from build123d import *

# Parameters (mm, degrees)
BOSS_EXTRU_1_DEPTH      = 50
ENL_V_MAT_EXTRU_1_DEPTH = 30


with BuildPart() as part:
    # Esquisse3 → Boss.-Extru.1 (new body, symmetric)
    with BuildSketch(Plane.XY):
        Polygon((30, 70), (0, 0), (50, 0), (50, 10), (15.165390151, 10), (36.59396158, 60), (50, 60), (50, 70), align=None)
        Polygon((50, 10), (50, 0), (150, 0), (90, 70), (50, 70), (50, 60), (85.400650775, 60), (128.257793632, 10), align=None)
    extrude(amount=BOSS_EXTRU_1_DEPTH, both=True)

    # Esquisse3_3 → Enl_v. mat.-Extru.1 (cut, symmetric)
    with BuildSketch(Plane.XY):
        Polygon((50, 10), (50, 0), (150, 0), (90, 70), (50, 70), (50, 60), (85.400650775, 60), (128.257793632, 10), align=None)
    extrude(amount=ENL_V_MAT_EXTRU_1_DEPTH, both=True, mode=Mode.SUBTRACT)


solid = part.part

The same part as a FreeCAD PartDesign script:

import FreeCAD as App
import Part
import Sketcher


def add_polygon(sketch, points):
    """Adds a closed chain of lines whose ends are joined by coincident constraints."""
    first, n = sketch.GeometryCount, len(points)
    for a, b in zip(points, points[1:] + points[:1]):
        sketch.addGeometry(Part.LineSegment(App.Vector(*a, 0), App.Vector(*b, 0)), False)
    for i in range(n):
        sketch.addConstraint(Sketcher.Constraint("Coincident", first + i, 2, first + (i + 1) % n, 1))

doc = App.newDocument("Part")
body = doc.addObject("PartDesign::Body", "Body")

sketch1 = doc.addObject("Sketcher::SketchObject", "Sketch")
body.addObject(sketch1)
sketch1.AttachmentSupport = (doc.XY_Plane, [""])
sketch1.MapMode = "FlatFace"
add_polygon(sketch1, [(30, 70), (0, 0), (150, 0), (90, 70)])
add_polygon(sketch1, [(15, 10), (37, 60), (85, 60), (128, 10)])
sketch1.addConstraint([
    Sketcher.Constraint("Horizontal", 1),
    Sketcher.Constraint("Horizontal", 3),
    Sketcher.Constraint("Horizontal", 5),
    Sketcher.Constraint("Horizontal", 7),
    Sketcher.Constraint("Coincident", 0, 2, -1, 1),
    Sketcher.Constraint("Parallel", 0, 4),
    Sketcher.Constraint("Parallel", 2, 6),
    Sketcher.Constraint("DistanceX", 1, 1, 1, 2, 150.0),
    Sketcher.Constraint("DistanceX", 3, 2, 3, 1, 60.0),
    Sketcher.Constraint("DistanceX", -1, 1, 2, 2, 90.0),
    Sketcher.Constraint("DistanceY", -1, 1, 2, 2, 70.0),
    Sketcher.Constraint("DistanceY", -1, 1, 4, 2, 60.0),
    Sketcher.Constraint("DistanceY", -1, 1, 6, 2, 10.0),
    Sketcher.Constraint("DistanceX", 5, 1, 5, 2, 48.806689),
    Sketcher.Constraint("DistanceX", -1, 1, 4, 2, 36.593962),
])
pad1 = doc.addObject("PartDesign::Pad", "Pad")
body.addObject(pad1)
pad1.Profile = sketch1
pad1.Length = 100
pad1.Midplane = True

sketch2 = doc.addObject("Sketcher::SketchObject", "Sketch001")
body.addObject(sketch2)
sketch2.AttachmentSupport = (doc.XY_Plane, [""])
sketch2.MapMode = "FlatFace"
add_polygon(sketch2, [(50, 10), (50, 0), (150, 0), (90, 70), (50, 70), (50, 60), (85, 60), (128, 10)])
sketch2.addConstraint([
    Sketcher.Constraint("Vertical", 0),
    Sketcher.Constraint("Horizontal", 1),
    Sketcher.Constraint("Horizontal", 3),
    Sketcher.Constraint("Vertical", 4),
    Sketcher.Constraint("Horizontal", 5),
    Sketcher.Constraint("Horizontal", 7),
    Sketcher.Constraint("PointOnObject", 0, 2, -1),
    Sketcher.Constraint("Parallel", 2, 6),
    Sketcher.Constraint("Vertical", 0, 2, 3, 2),
    Sketcher.Constraint("Equal", 0, 4),
    Sketcher.Constraint("DistanceX", 1, 1, 1, 2, 100.0),
    Sketcher.Constraint("DistanceX", 3, 2, 3, 1, 40.0),
    Sketcher.Constraint("DistanceY", 0, 2, 0, 1, 10.0),
    Sketcher.Constraint("DistanceX", -1, 1, 0, 2, 50.0),
    Sketcher.Constraint("DistanceY", -1, 1, 2, 2, 70.0),
    Sketcher.Constraint("DistanceX", 5, 1, 5, 2, 35.400651),
])
pocket1 = doc.addObject("PartDesign::Pocket", "Pocket")
body.addObject(pocket1)
pocket1.Profile = sketch2
pocket1.Length = 60
pocket1.Midplane = True

doc.recompute()
